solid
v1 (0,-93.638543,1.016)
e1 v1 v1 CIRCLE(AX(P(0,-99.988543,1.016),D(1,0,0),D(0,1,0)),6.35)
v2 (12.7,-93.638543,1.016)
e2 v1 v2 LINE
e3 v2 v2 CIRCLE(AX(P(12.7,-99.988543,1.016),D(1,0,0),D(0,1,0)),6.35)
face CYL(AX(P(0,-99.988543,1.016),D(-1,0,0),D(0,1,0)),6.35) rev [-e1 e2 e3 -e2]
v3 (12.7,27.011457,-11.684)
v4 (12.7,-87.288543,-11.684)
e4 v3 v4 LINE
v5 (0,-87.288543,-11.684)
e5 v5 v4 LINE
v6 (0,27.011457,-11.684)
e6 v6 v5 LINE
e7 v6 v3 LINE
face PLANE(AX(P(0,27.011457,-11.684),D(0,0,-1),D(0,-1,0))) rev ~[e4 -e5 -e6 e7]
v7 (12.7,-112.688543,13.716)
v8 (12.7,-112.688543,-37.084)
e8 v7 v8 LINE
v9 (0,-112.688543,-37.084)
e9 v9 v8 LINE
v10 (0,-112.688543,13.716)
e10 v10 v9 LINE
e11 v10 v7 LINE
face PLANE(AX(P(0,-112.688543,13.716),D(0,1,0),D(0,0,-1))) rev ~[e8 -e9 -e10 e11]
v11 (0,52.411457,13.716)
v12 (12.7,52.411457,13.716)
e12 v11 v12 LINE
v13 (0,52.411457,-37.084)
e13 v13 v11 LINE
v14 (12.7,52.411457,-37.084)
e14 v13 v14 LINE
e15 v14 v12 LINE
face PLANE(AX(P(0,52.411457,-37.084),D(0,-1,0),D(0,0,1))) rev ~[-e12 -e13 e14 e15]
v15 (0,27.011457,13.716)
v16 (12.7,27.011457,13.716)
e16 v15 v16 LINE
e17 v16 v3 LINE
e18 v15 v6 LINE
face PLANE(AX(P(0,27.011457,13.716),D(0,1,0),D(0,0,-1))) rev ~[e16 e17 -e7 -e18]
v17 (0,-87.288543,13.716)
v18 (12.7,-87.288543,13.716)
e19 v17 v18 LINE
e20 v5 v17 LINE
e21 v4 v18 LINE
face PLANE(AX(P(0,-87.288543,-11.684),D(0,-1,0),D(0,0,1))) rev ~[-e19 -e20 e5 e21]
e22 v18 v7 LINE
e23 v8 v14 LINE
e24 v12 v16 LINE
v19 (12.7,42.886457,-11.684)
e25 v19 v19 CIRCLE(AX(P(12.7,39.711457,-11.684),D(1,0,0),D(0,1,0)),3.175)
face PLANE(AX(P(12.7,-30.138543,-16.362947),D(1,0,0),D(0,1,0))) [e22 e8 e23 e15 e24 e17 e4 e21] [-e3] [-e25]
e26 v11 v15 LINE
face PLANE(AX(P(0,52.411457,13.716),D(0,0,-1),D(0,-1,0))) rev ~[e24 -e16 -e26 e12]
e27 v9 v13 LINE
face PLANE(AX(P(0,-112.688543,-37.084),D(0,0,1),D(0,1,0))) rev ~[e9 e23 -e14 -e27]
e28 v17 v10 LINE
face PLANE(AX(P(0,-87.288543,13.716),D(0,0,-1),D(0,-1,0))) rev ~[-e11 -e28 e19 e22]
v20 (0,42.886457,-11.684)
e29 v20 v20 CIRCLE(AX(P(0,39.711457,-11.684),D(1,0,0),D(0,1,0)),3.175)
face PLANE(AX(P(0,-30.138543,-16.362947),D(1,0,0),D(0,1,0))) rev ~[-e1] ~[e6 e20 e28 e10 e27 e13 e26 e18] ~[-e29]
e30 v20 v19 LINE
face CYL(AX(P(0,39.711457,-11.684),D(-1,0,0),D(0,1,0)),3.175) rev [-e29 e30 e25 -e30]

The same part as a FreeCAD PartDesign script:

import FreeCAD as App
import Part
import Sketcher

V = App.Vector
Q = App.Units.Quantity

doc = App.newDocument("Part")
params = doc.addObject("Spreadsheet::Sheet", "Params")
for row, (alias, value) in enumerate([
    ("sketch1_diameter", "0.5 in"),
    ("sketch1_diameter2", "0.25 in"),
    ("sketch1_width", "1 in"),
    ("sketch1_height", "2 in"),
    ("sketch1_width2", "6.5 in"),
    ("pad1_length", "0.5 in"),
], start=1):
    params.set(f"A{row}", alias)
    params.set(f"B{row}", "=" + value)
    params.setAlias(f"B{row}", alias)

body = doc.addObject("PartDesign::Body", "Body")

# Sketch on YZ plane
sketch1 = body.newObject("Sketcher::SketchObject", "Sketch")
sketch1.AttachmentSupport = (doc.getObject("YZ_Plane"), [""])
sketch1.MapMode = "FlatFace"
sketch1.addGeometry([
    Part.LineSegment(V(-87.3, 13.7, 0), V(-112.7, 13.7, 0)),  # 0
    Part.LineSegment(V(-112.7, 13.7, 0), V(-112.7, -37.1, 0)),  # 1
    Part.LineSegment(V(-112.7, -37.1, 0), V(52.4, -37.1, 0)),  # 2
    Part.LineSegment(V(52.4, -37.1, 0), V(52.4, 13.7, 0)),  # 3
    Part.LineSegment(V(52.4, 13.7, 0), V(27, 13.7, 0)),  # 4
    Part.LineSegment(V(27, 13.7, 0), V(27, -11.7, 0)),  # 5
    Part.LineSegment(V(27, -11.7, 0), V(-87.3, -11.7, 0)),  # 6
    Part.LineSegment(V(-87.3, -11.7, 0), V(-87.3, 13.7, 0)),  # 7
    Part.Circle(V(39.7, -11.7, 0), V(0, 0, 1), 3.2),  # 8
    Part.Circle(V(-100, 1, 0), V(0, 0, 1), 6.3),  # 9
], False)
sketch1.addConstraint([
    Sketcher.Constraint("Coincident", 0, 2, 1, 1),
    Sketcher.Constraint("Coincident", 1, 2, 2, 1),
    Sketcher.Constraint("Coincident", 2, 2, 3, 1),
    Sketcher.Constraint("Coincident", 3, 2, 4, 1),
    Sketcher.Constraint("Coincident", 4, 2, 5, 1),
    Sketcher.Constraint("Coincident", 5, 2, 6, 1),
    Sketcher.Constraint("Coincident", 6, 2, 7, 1),
    Sketcher.Constraint("Coincident", 7, 2, 0, 1),
    Sketcher.Constraint("Horizontal", 0),
    Sketcher.Constraint("Vertical", 1),
    Sketcher.Constraint("Horizontal", 2),
    Sketcher.Constraint("Vertical", 3),
    Sketcher.Constraint("Horizontal", 4),
    Sketcher.Constraint("Vertical", 5),
    Sketcher.Constraint("Horizontal", 6),
    Sketcher.Constraint("Vertical", 7),
    Sketcher.Constraint("Horizontal", 0, 2, 3, 2),
    Sketcher.Constraint("Horizontal", 8, 3, 5, 2),
    Sketcher.Constraint("Equal", 0, 4),
    Sketcher.Constraint("Equal", 4, 5),
    Sketcher.Constraint("Diameter", 9, Q("0.5 in")),
    Sketcher.Constraint("Diameter", 8, Q("0.25 in")),
    Sketcher.Constraint("DistanceX", 0, 2, 0, 1, Q("1 in")),
    Sketcher.Constraint("DistanceY", 1, 2, 1, 1, Q("2 in")),
    Sketcher.Constraint("DistanceX", 2, 1, 2, 2, Q("6.5 in")),
    Sketcher.Constraint("DistanceX", 0, 2, 8, 3, Q("6 in")),
    Sketcher.Constraint("DistanceX", 9, 3, 2, 2, Q("6 in")),
    Sketcher.Constraint("DistanceY", 8, 3, 9, 3, Q("0.5 in")),
    Sketcher.Constraint("DistanceY", 8, 3, -1, 1, Q("0.46 in")),
    Sketcher.Constraint("DistanceX", -1, 1, 8, 3, 39.711457),
])
sketch1.setExpression("Constraints[20]", "Params.sketch1_diameter")
sketch1.setExpression("Constraints[21]", "Params.sketch1_diameter2")
sketch1.setExpression("Constraints[22]", "Params.sketch1_width")
sketch1.setExpression("Constraints[23]", "Params.sketch1_height")
sketch1.setExpression("Constraints[24]", "Params.sketch1_width2")
pad1 = body.newObject("PartDesign::Pad", "Pad")
pad1.Profile = sketch1
pad1.setExpression("Length", "Params.pad1_length")

doc.recompute()
